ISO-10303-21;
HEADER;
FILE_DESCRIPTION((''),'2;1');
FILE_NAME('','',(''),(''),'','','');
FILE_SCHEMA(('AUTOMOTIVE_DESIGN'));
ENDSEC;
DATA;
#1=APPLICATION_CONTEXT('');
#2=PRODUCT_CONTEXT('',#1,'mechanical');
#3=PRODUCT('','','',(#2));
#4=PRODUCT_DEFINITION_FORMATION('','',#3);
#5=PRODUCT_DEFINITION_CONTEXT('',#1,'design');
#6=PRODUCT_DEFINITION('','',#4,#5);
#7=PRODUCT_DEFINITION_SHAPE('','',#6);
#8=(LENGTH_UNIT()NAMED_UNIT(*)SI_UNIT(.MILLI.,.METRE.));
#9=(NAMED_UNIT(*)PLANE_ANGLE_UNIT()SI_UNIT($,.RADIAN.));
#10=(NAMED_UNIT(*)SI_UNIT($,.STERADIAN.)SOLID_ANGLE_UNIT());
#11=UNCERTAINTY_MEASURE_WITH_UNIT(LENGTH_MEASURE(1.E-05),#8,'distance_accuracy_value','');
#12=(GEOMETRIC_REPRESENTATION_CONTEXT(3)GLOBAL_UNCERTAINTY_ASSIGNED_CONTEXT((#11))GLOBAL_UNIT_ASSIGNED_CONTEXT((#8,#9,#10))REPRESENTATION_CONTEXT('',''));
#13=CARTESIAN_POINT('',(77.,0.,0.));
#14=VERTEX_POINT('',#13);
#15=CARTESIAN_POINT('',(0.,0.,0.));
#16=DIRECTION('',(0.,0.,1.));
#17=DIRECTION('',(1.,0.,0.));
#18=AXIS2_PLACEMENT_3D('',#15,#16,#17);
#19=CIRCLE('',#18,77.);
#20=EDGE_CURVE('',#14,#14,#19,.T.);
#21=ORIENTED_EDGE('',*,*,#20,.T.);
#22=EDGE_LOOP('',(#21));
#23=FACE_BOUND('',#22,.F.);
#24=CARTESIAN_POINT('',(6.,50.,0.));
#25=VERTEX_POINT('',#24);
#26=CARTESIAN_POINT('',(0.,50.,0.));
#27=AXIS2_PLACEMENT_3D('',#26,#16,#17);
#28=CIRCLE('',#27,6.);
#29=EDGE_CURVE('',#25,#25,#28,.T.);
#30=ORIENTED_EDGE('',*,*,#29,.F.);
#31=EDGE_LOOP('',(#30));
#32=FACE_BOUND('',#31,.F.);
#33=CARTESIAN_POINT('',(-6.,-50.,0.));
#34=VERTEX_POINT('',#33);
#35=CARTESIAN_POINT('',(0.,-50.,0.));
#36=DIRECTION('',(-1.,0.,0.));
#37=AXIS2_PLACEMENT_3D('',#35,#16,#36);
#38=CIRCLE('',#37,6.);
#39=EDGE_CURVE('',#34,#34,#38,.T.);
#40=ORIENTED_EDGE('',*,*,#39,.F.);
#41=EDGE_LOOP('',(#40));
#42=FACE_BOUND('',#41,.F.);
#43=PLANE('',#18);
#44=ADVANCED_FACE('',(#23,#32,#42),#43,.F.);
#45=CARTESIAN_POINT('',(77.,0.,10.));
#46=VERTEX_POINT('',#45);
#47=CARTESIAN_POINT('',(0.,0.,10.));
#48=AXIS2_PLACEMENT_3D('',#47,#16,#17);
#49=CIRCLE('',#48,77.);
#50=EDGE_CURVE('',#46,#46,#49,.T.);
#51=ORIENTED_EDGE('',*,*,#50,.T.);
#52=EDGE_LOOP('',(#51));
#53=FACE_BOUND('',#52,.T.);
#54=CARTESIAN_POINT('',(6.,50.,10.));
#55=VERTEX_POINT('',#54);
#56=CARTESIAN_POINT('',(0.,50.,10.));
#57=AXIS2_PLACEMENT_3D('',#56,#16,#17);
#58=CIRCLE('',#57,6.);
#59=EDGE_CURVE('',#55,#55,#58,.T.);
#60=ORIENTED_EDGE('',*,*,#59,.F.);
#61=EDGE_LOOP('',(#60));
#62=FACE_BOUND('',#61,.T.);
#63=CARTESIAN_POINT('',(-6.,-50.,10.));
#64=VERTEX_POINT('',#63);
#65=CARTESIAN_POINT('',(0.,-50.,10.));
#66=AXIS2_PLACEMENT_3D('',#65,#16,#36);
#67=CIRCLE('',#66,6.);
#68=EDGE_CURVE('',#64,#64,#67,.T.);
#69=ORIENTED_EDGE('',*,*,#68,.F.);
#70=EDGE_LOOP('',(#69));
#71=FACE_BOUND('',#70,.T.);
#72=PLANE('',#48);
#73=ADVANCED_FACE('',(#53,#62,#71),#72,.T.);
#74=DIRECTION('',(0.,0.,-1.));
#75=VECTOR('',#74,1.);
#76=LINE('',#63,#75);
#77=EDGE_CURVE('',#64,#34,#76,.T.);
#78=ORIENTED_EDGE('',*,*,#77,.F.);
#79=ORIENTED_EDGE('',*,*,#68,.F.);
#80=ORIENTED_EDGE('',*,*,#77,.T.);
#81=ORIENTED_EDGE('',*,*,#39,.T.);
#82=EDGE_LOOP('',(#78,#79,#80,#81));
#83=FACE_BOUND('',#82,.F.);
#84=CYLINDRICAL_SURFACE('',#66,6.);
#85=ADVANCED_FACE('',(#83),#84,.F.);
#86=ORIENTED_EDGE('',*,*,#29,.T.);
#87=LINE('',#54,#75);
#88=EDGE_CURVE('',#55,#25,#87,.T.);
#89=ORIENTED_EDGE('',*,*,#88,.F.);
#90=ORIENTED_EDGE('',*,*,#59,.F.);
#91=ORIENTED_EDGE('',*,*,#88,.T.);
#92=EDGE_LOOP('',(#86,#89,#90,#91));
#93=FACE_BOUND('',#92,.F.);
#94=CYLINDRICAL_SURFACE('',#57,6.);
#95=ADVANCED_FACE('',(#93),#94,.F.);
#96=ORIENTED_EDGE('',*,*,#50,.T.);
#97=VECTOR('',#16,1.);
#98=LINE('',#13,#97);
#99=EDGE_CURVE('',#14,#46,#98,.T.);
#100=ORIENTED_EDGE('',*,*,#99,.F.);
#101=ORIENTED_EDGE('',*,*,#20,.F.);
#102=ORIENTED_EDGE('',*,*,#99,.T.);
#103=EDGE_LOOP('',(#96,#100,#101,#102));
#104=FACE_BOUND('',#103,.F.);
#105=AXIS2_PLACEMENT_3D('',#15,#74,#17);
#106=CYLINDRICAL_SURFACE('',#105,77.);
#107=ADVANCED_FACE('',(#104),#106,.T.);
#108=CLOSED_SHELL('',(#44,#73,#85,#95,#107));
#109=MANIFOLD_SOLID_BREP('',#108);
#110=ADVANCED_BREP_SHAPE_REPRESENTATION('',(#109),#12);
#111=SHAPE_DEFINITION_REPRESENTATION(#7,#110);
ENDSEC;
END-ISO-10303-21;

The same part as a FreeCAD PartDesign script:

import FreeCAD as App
import Part
import Sketcher
from FreeCAD import Vector
Q = App.Units.Quantity

doc = App.newDocument("Part")
body = doc.addObject("PartDesign::Body", "Body")

# Sketch on XY plane
sketch1 = doc.addObject("Sketcher::SketchObject", "Sketch")
body.addObject(sketch1)
sketch1.AttachmentSupport = (doc.XY_Plane, [""])
sketch1.MapMode = "FlatFace"
sketch1.addGeometry(Part.Circle(Vector(0, 0, 0), Vector(0, 0, 1), 77), False)
sketch1.addConstraint(Sketcher.Constraint("Coincident", 0, 3, -1, 1))
sketch1.addConstraint(Sketcher.Constraint("Diameter", 0, Q("154 mm")))
pad1 = doc.addObject("PartDesign::Pad", "Pad")
body.addObject(pad1)
pad1.Profile = sketch1
pad1.Length = 10

# Sketch on XY plane
sketch2 = doc.addObject("Sketcher::SketchObject", "Sketch001")
body.addObject(sketch2)
sketch2.AttachmentSupport = (doc.XY_Plane, [""])
sketch2.MapMode = "FlatFace"
sketch2.AttachmentOffset = App.Placement(Vector(0, 0, 10), App.Rotation())
sketch2.addGeometry(Part.Circle(Vector(0, 50, 0), Vector(0, 0, 1), 6), False)
sketch2.addConstraint(Sketcher.Constraint("PointOnObject", 0, 3, -2))
sketch2.addConstraint(Sketcher.Constraint("Diameter", 0, Q("12 mm")))
sketch2.addConstraint(Sketcher.Constraint("DistanceY", -1, 1, 0, 3, Q("50 mm")))
pocket1 = doc.addObject("PartDesign::Pocket", "Pocket")
body.addObject(pocket1)
pocket1.Profile = sketch2
pocket1.Type = "ThroughAll"
doc.recompute()

polarpattern = doc.addObject("PartDesign::PolarPattern", "PolarPattern")
body.addObject(polarpattern)
polarpattern.Originals = [pocket1]
polarpattern.Axis = (doc.Z_Axis, [""])
polarpattern.Angle = 360
polarpattern.Occurrences = 2
body.Tip = polarpattern

doc.recompute()
